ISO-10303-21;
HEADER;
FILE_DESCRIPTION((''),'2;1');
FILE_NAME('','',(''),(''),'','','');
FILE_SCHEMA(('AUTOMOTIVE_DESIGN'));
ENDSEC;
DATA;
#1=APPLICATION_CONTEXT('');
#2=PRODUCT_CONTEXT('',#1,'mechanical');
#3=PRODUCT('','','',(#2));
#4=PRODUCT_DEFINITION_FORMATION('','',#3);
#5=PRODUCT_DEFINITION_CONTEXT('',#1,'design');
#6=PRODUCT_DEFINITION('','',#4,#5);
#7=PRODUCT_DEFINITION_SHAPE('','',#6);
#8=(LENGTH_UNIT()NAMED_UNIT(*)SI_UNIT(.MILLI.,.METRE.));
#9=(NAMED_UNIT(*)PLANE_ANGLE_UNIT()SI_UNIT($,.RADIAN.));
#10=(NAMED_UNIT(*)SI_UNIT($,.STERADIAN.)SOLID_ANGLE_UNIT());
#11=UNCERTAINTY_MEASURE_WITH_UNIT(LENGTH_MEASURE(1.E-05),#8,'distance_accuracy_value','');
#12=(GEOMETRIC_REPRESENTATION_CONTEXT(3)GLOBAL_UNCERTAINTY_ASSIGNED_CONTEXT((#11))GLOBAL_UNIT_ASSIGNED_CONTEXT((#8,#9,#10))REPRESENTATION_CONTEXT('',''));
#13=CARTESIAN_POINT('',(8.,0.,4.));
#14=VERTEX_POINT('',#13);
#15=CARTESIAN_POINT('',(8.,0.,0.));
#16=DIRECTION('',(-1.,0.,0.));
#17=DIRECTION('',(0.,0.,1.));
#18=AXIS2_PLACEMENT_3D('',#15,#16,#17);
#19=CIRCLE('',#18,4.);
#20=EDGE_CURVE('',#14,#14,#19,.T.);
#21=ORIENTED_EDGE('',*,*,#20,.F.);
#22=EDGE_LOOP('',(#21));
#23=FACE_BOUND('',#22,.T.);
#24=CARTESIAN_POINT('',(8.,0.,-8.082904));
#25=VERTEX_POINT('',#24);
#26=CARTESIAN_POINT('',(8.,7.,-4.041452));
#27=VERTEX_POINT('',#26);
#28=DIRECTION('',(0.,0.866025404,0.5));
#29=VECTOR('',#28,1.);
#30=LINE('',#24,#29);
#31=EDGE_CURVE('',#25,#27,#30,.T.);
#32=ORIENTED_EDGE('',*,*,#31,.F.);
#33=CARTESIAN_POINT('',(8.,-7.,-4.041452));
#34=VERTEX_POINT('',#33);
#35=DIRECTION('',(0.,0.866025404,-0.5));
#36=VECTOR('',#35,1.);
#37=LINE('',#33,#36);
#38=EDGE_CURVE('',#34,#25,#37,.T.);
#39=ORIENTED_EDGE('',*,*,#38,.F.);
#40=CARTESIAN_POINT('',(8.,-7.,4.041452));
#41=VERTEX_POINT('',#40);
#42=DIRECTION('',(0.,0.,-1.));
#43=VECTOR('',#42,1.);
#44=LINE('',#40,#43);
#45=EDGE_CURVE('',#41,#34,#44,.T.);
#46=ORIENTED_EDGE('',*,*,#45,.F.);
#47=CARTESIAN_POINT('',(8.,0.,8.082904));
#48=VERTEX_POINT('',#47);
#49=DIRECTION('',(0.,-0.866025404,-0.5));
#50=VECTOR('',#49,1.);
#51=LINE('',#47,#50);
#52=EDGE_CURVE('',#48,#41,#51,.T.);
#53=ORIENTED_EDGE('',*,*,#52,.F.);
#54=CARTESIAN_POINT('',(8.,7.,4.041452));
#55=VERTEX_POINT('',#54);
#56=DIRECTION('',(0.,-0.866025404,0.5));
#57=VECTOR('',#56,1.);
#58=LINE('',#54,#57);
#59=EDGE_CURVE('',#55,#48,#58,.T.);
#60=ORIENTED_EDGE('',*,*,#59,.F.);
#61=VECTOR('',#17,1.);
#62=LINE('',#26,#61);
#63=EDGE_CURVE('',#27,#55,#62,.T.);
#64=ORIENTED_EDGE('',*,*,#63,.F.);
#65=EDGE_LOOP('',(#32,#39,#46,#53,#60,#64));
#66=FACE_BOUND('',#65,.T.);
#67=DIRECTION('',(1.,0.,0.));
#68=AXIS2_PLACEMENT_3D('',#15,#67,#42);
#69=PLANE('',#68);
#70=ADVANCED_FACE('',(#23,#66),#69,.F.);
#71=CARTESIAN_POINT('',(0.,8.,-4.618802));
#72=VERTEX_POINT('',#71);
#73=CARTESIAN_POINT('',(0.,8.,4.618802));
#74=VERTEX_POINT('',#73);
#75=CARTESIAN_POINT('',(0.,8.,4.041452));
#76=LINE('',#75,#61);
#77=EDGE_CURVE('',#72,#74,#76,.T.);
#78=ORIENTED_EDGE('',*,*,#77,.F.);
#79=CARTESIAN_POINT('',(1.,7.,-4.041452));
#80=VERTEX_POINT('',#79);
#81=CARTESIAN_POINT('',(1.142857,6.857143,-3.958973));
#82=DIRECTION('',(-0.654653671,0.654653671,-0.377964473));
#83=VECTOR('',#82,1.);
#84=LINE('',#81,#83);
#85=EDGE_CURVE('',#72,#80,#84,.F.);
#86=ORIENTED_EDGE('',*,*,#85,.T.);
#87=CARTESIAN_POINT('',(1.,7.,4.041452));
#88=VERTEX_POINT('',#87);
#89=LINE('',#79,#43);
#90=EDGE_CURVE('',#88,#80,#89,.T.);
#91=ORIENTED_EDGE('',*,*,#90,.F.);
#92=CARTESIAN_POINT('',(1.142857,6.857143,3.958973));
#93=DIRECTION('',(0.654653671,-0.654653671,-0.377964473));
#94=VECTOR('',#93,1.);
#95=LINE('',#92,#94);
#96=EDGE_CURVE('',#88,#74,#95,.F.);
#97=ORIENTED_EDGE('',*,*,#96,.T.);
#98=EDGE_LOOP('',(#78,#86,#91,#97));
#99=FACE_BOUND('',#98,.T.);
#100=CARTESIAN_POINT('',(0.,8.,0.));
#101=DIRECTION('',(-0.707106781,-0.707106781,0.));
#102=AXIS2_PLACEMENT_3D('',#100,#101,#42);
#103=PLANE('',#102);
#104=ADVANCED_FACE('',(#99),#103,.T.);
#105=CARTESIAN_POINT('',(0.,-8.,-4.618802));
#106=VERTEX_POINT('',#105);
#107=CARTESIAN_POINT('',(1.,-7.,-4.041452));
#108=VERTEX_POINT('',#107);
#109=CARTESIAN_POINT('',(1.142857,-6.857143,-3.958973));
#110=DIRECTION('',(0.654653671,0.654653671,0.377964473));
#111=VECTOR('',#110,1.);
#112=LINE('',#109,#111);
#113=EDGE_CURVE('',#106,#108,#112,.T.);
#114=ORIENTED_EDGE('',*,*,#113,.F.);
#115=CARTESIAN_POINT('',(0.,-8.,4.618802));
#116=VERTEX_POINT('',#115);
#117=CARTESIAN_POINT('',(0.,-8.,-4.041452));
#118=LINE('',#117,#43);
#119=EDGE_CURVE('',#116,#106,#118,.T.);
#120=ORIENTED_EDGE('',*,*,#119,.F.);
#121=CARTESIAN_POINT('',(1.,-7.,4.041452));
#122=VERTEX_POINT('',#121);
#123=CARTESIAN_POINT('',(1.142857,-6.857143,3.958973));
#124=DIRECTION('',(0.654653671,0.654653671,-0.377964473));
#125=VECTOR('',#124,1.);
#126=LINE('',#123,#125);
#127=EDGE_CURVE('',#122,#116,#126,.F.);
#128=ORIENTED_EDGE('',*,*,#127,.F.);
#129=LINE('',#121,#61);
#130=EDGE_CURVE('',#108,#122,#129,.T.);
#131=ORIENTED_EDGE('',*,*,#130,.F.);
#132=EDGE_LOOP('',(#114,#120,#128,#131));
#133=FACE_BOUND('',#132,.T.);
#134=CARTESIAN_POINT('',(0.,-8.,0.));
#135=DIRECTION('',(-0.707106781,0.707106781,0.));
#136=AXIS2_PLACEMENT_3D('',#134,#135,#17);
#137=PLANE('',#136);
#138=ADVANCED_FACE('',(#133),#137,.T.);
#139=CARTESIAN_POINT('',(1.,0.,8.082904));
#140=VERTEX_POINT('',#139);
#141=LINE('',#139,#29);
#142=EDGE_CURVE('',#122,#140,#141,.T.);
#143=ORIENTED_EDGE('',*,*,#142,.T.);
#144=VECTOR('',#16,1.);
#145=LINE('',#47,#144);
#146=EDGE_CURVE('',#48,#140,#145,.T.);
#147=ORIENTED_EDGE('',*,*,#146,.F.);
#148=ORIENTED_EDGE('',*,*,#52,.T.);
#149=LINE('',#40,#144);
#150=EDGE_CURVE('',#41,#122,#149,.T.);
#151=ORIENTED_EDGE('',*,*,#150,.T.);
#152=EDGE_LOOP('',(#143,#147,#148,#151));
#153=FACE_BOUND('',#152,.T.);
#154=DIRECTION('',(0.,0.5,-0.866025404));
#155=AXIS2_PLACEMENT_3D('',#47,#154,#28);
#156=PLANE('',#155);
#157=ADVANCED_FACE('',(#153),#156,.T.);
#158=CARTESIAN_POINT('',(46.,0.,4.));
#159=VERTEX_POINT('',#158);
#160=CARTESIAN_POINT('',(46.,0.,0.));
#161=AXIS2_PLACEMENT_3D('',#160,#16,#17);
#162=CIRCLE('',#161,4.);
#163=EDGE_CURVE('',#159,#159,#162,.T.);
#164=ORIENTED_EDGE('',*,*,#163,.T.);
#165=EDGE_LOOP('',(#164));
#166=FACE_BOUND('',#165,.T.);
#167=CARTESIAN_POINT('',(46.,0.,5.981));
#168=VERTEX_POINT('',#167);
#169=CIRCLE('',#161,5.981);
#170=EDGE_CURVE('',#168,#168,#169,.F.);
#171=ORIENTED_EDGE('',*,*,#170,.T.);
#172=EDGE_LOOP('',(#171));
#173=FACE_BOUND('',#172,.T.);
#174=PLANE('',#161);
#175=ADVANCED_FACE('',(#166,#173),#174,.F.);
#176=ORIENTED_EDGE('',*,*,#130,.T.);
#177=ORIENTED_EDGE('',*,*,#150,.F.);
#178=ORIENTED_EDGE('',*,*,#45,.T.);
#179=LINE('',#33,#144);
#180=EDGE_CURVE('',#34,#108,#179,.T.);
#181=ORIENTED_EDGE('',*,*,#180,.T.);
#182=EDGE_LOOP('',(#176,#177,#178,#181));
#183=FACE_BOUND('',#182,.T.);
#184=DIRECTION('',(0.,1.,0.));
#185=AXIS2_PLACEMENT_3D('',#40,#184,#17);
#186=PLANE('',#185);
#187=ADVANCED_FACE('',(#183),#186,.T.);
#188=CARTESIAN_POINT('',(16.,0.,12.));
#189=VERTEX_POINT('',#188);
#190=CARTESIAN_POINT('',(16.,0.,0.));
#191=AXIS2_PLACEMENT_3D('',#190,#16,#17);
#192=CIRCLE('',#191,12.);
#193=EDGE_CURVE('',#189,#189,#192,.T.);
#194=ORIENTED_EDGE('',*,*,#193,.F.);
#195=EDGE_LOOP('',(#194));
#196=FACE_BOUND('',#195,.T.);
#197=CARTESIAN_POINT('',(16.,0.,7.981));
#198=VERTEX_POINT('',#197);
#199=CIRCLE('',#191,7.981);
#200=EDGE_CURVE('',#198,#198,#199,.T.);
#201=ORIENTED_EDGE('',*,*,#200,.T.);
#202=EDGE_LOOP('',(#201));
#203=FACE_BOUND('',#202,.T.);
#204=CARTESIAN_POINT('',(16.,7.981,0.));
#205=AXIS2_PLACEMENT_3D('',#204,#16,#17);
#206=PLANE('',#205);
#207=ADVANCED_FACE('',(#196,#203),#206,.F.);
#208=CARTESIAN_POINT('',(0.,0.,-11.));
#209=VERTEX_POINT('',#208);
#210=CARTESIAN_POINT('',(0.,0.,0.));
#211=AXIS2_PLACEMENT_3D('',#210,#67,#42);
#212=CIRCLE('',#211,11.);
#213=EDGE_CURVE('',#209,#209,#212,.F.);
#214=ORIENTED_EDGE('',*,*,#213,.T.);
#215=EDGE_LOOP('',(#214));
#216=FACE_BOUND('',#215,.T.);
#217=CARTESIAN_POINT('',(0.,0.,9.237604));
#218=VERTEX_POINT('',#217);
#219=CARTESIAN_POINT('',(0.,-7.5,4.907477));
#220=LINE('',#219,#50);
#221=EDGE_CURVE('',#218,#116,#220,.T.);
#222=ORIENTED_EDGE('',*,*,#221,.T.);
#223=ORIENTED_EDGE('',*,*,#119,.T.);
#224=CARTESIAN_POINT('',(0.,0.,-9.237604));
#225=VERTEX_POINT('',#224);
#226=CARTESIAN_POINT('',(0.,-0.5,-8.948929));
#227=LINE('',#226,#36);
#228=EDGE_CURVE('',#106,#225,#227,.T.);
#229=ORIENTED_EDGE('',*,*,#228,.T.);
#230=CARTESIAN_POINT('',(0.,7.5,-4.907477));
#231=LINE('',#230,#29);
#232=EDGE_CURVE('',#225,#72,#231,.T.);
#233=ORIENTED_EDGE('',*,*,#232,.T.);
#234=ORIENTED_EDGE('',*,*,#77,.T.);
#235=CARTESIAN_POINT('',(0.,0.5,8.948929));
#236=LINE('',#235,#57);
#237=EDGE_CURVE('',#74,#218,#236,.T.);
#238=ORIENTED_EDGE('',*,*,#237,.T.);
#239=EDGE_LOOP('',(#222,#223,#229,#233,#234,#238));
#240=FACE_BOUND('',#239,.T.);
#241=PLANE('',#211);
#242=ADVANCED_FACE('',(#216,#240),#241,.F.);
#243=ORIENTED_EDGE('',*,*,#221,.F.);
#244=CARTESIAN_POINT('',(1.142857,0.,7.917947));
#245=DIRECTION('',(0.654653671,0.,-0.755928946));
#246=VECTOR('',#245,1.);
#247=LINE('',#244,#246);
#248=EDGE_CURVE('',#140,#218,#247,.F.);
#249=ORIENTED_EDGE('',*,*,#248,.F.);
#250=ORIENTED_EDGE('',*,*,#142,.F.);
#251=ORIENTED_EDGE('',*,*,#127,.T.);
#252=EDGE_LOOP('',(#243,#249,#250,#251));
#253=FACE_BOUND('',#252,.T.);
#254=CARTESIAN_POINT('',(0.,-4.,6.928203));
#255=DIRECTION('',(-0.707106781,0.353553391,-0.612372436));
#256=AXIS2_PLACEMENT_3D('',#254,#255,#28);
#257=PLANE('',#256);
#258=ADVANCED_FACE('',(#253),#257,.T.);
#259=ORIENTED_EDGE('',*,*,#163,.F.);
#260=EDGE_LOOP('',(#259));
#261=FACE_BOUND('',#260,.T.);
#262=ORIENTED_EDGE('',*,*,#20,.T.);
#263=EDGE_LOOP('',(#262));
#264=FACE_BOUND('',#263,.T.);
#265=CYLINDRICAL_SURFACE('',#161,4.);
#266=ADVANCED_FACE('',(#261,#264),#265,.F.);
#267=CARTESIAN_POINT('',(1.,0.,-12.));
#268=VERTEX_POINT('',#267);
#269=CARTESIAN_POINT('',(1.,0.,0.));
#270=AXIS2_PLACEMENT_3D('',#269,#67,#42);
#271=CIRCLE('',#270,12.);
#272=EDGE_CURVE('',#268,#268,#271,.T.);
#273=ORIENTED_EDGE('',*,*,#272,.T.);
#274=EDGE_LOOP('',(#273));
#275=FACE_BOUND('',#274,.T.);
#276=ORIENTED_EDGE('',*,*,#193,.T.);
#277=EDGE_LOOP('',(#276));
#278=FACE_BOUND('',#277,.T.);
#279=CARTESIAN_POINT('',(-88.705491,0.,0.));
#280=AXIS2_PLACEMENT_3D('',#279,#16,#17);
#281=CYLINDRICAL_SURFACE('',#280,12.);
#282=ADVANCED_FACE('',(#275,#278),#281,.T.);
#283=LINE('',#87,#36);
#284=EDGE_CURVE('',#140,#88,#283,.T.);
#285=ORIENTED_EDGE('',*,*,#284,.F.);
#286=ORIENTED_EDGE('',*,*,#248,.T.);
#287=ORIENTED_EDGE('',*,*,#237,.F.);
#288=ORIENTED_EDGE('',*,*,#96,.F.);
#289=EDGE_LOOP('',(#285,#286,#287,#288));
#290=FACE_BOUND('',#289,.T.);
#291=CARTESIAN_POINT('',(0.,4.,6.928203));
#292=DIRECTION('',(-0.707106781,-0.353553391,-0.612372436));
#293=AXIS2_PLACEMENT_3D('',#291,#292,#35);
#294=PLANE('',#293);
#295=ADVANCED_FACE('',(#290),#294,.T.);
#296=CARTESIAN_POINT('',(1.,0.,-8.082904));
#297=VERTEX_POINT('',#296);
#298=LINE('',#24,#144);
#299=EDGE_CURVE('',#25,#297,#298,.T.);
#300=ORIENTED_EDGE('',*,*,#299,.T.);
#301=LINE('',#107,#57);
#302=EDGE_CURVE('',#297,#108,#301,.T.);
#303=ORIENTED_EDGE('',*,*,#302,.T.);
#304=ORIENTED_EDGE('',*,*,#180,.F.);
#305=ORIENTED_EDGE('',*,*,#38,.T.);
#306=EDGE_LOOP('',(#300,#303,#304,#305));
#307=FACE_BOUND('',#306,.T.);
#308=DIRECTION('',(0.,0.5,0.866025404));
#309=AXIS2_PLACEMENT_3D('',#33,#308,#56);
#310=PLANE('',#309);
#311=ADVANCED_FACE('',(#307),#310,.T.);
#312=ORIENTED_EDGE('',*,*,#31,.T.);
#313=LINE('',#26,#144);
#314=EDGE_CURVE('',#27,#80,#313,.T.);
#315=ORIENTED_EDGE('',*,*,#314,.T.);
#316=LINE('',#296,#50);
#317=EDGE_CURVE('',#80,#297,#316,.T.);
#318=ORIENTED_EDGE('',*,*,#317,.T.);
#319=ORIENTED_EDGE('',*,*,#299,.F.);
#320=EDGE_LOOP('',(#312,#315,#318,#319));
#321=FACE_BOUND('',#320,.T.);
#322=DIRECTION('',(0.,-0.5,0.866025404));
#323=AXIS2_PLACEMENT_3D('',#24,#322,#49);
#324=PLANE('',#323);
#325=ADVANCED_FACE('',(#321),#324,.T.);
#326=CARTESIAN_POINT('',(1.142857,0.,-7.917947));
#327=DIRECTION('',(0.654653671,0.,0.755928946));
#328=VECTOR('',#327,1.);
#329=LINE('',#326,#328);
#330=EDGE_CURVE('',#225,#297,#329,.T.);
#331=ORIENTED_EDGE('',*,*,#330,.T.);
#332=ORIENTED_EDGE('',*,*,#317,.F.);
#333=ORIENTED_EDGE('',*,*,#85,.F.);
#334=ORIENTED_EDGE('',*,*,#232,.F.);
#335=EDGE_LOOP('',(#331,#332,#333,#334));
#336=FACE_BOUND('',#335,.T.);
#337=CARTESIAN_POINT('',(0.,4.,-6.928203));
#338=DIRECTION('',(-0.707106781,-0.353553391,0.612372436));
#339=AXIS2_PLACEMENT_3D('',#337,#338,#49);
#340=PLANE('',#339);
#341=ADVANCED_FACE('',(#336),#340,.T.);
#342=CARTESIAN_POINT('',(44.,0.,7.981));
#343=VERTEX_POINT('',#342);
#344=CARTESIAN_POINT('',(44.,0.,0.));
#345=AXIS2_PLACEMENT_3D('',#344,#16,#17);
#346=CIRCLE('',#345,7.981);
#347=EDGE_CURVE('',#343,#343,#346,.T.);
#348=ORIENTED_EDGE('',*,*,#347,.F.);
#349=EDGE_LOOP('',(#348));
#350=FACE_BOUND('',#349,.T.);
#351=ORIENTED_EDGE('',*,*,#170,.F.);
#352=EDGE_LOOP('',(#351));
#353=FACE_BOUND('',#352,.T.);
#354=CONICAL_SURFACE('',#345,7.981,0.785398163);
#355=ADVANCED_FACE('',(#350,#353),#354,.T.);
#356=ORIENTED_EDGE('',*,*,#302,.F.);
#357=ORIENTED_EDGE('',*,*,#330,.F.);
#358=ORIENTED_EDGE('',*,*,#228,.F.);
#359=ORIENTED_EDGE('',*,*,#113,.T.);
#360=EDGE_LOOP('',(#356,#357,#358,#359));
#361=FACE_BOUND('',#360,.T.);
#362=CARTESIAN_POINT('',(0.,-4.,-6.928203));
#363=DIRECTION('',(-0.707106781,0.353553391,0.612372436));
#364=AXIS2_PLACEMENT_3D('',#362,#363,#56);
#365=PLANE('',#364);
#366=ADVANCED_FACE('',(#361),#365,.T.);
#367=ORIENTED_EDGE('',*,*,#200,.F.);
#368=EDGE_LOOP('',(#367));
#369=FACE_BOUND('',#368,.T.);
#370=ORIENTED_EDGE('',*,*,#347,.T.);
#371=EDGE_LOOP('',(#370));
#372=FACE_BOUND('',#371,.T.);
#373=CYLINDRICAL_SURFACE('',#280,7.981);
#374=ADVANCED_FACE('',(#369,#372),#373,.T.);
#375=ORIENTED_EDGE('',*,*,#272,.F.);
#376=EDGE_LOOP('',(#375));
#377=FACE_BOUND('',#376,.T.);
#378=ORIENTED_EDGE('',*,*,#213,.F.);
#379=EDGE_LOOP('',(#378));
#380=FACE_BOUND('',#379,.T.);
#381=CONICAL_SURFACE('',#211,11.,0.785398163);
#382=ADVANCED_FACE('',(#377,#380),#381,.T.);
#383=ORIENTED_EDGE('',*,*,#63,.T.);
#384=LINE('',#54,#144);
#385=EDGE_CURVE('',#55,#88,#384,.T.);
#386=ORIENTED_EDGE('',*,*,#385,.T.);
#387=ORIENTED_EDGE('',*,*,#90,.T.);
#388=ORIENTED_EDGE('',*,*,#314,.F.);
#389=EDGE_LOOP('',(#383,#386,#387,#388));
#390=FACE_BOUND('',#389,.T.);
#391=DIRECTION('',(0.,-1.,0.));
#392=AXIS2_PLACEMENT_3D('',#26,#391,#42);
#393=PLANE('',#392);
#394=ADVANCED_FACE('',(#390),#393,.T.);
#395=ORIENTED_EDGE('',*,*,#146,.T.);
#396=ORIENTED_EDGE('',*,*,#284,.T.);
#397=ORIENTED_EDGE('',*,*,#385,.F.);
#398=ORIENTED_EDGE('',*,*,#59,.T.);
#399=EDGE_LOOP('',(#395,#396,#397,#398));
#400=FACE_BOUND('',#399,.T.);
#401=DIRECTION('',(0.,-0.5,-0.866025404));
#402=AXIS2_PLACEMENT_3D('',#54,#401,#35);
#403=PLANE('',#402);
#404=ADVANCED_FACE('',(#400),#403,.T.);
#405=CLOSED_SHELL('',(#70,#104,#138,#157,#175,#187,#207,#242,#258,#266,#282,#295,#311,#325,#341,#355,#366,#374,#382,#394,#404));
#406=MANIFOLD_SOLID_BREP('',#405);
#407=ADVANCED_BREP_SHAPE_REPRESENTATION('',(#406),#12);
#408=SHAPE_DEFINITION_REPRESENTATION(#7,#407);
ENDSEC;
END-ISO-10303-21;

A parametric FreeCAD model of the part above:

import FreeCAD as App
import Part
import Sketcher
Q = App.Units.Quantity


def edges_at(feature, points):
    """Names of the edges that pass closest to the given points."""
    edges = feature.Shape.Edges
    near = lambda p: min(range(len(edges)), key=lambda i: edges[i].distToShape(Part.Vertex(*p))[0])
    return sorted({f"Edge{near(p) + 1}" for p in points})

doc = App.newDocument("Part")
body = doc.addObject("PartDesign::Body", "Body")

# Sketch on XY plane
sketch1 = body.newObject("Sketcher::SketchObject", "Sketch")
sketch1.AttachmentSupport = (doc.getObject("XY_Plane"), [""])
sketch1.MapMode = "FlatFace"
sketch1.addGeometry([
    Part.LineSegment(App.Vector(0, 12, 0), App.Vector(0, 0, 0)),  # 0
    Part.LineSegment(App.Vector(0, 0, 0), App.Vector(46, 0, 0)),  # 1
    Part.LineSegment(App.Vector(46, 0, 0), App.Vector(46, 8, 0)),  # 2
    Part.LineSegment(App.Vector(46, 8, 0), App.Vector(16, 8, 0)),  # 3
    Part.LineSegment(App.Vector(16, 8, 0), App.Vector(16, 12, 0)),  # 4
    Part.LineSegment(App.Vector(16, 12, 0), App.Vector(0, 12, 0)),  # 5
], False)
sketch1.addConstraint([
    Sketcher.Constraint("Coincident", 0, 2, 1, 1),
    Sketcher.Constraint("Coincident", 1, 2, 2, 1),
    Sketcher.Constraint("Coincident", 2, 2, 3, 1),
    Sketcher.Constraint("Coincident", 3, 2, 4, 1),
    Sketcher.Constraint("Coincident", 4, 2, 5, 1),
    Sketcher.Constraint("Coincident", 5, 2, 0, 1),
    Sketcher.Constraint("Vertical", 0),
    Sketcher.Constraint("Horizontal", 1),
    Sketcher.Constraint("Vertical", 2),
    Sketcher.Constraint("Horizontal", 3),
    Sketcher.Constraint("Vertical", 4),
    Sketcher.Constraint("Horizontal", 5),
    Sketcher.Constraint("Coincident", 0, 2, -1, 1),
    Sketcher.Constraint("DistanceX", 1, 1, 1, 2, 46.0),
    Sketcher.Constraint("DistanceX", 3, 2, 3, 1, 30.0),
    Sketcher.Constraint("DistanceY", 0, 2, 0, 1, 12.0),
    Sketcher.Constraint("DistanceY", 2, 1, 2, 2, 7.981),
])
revolution = body.newObject("PartDesign::Revolution", "Revolution")
revolution.Profile = sketch1
revolution.ReferenceAxis = (sketch1, ["H_Axis"])
revolution.Angle = 360
doc.recompute()

chamfer = body.newObject("PartDesign::Chamfer", "Chamfer")
chamfer.Base = (revolution, edges_at(revolution, [(46, -7.981, 0)]))
chamfer.Size = 2
doc.recompute()

chamfer2 = body.newObject("PartDesign::Chamfer", "Chamfer001")
chamfer2.Base = (chamfer, edges_at(chamfer, [(0, -12, 0)]))
chamfer2.Size = 1

# Sketch on YZ plane
sketch2 = body.newObject("Sketcher::SketchObject", "Sketch001")
sketch2.AttachmentSupport = (doc.getObject("YZ_Plane"), [""])
sketch2.MapMode = "FlatFace"
sketch2.addGeometry([
    Part.LineSegment(App.Vector(0, 8, 0), App.Vector(-7, 4, 0)),  # 0
    Part.LineSegment(App.Vector(-7, 4, 0), App.Vector(-7, -4, 0)),  # 1
    Part.LineSegment(App.Vector(-7, -4, 0), App.Vector(0, -8, 0)),  # 2
    Part.LineSegment(App.Vector(0, -8, 0), App.Vector(7, -4, 0)),  # 3
    Part.LineSegment(App.Vector(7, -4, 0), App.Vector(7, 4, 0)),  # 4
    Part.LineSegment(App.Vector(7, 4, 0), App.Vector(0, 8, 0)),  # 5
], False)
sketch2.addConstraint([
    Sketcher.Constraint("Coincident", 0, 2, 1, 1),
    Sketcher.Constraint("Coincident", 1, 2, 2, 1),
    Sketcher.Constraint("Coincident", 2, 2, 3, 1),
    Sketcher.Constraint("Coincident", 3, 2, 4, 1),
    Sketcher.Constraint("Coincident", 4, 2, 5, 1),
    Sketcher.Constraint("Coincident", 5, 2, 0, 1),
    Sketcher.Constraint("Vertical", 1),
    Sketcher.Constraint("Vertical", 4),
    Sketcher.Constraint("Symmetric", 0, 2, 3, 2, -1, 1),
    Sketcher.Constraint("Symmetric", 2, 2, 5, 2, -1, 1),
    Sketcher.Constraint("PointOnObject", 2, 2, -2),
    Sketcher.Constraint("Parallel", 2, 5),
    Sketcher.Constraint("Horizontal", 1, 2, 3, 2),
    Sketcher.Constraint("Angle", 0, Q("-150 deg")),
    Sketcher.Constraint("DistanceX", 0, 2, -1, 1, 7.0),
    Sketcher.Constraint("DistanceY", 1, 2, 1, 1, 8.082904),
])
pocket1 = body.newObject("PartDesign::Pocket", "Pocket")
pocket1.Profile = sketch2
pocket1.Length = 8
pocket1.Reversed = True
doc.recompute()

chamfer3 = body.newObject("PartDesign::Chamfer", "Chamfer002")
chamfer3.Base = (pocket1, edges_at(pocket1, [
    (0, 3.5, 6.062),
    (0, -3.5, 6.062),
    (0, -7, 0),
    (0, -3.5, -6.062),
    (0, 3.5, -6.062),
    (0, 7, 0),
]))
chamfer3.Size = 1

# Sketch on YZ plane
sketch3 = body.newObject("Sketcher::SketchObject", "Sketch002")
sketch3.AttachmentSupport = (doc.getObject("YZ_Plane"), [""])
sketch3.MapMode = "FlatFace"
sketch3.AttachmentOffset = App.Placement(App.Vector(0, 0, 8), App.Rotation())
sketch3.addGeometry(Part.Circle(App.Vector(0, 0, 0), App.Vector(0, 0, 1), 4), False)
sketch3.addConstraint([
    Sketcher.Constraint("Coincident", 0, 3, -1, 1),
    Sketcher.Constraint("Diameter", 0, 8.0),
])
pocket2 = body.newObject("PartDesign::Pocket", "Pocket001")
pocket2.Profile = sketch3
pocket2.Type = "ThroughAll"
pocket2.Reversed = True

doc.recompute()
